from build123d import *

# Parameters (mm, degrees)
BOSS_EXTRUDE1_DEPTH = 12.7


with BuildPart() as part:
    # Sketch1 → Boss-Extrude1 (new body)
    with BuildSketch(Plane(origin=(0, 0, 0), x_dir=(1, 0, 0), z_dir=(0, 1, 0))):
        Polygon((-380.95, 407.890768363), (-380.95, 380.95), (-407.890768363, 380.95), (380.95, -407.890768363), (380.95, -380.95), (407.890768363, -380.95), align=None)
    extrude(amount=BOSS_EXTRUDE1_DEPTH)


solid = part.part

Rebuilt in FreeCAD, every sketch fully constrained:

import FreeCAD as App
import Part
import Sketcher
Q = App.Units.Quantity


def add_polygon(sketch, points):
    """Adds a closed chain of lines whose ends are joined by coincident constraints."""
    first, n = sketch.GeometryCount, len(points)
    for a, b in zip(points, points[1:] + points[:1]):
        sketch.addGeometry(Part.LineSegment(App.Vector(*a, 0), App.Vector(*b, 0)), False)
    for i in range(n):
        sketch.addConstraint(Sketcher.Constraint("Coincident", first + i, 2, first + (i + 1) % n, 1))

doc = App.newDocument("Part")
body = doc.addObject("PartDesign::Body", "Body")

# Sketch on XZ plane
sketch1 = body.newObject("Sketcher::SketchObject", "Sketch")
sketch1.AttachmentSupport = (doc.getObject("XZ_Plane"), [""])
sketch1.MapMode = "FlatFace"
add_polygon(sketch1, [(-381, -408), (-381, -381), (-408, -381), (381, 408), (381, 381), (408, 381)])  # lines 0-5
sketch1.addConstraint([
    Sketcher.Constraint("Vertical", 0),
    Sketcher.Constraint("Horizontal", 1),
    Sketcher.Constraint("Vertical", 3),
    Sketcher.Constraint("Horizontal", 4),
    Sketcher.Constraint("Symmetric", 0, 2, 3, 2, -1, 1),
    Sketcher.Constraint("Parallel", 2, 5),
    Sketcher.Constraint("Equal", 1, 4),
    Sketcher.Constraint("Equal", 4, 0),
    Sketcher.Constraint("Angle", 2, Q("45 deg")),
    Sketcher.Constraint("DistanceX", 1, 2, 1, 1, 26.940768),
    Sketcher.Constraint("DistanceX", 0, 2, -1, 1, 380.95),
])
pad1 = body.newObject("PartDesign::Pad", "Pad")
pad1.Profile = sketch1
pad1.Length = Q("0.5 in")
pad1.Reversed = True

doc.recompute()
